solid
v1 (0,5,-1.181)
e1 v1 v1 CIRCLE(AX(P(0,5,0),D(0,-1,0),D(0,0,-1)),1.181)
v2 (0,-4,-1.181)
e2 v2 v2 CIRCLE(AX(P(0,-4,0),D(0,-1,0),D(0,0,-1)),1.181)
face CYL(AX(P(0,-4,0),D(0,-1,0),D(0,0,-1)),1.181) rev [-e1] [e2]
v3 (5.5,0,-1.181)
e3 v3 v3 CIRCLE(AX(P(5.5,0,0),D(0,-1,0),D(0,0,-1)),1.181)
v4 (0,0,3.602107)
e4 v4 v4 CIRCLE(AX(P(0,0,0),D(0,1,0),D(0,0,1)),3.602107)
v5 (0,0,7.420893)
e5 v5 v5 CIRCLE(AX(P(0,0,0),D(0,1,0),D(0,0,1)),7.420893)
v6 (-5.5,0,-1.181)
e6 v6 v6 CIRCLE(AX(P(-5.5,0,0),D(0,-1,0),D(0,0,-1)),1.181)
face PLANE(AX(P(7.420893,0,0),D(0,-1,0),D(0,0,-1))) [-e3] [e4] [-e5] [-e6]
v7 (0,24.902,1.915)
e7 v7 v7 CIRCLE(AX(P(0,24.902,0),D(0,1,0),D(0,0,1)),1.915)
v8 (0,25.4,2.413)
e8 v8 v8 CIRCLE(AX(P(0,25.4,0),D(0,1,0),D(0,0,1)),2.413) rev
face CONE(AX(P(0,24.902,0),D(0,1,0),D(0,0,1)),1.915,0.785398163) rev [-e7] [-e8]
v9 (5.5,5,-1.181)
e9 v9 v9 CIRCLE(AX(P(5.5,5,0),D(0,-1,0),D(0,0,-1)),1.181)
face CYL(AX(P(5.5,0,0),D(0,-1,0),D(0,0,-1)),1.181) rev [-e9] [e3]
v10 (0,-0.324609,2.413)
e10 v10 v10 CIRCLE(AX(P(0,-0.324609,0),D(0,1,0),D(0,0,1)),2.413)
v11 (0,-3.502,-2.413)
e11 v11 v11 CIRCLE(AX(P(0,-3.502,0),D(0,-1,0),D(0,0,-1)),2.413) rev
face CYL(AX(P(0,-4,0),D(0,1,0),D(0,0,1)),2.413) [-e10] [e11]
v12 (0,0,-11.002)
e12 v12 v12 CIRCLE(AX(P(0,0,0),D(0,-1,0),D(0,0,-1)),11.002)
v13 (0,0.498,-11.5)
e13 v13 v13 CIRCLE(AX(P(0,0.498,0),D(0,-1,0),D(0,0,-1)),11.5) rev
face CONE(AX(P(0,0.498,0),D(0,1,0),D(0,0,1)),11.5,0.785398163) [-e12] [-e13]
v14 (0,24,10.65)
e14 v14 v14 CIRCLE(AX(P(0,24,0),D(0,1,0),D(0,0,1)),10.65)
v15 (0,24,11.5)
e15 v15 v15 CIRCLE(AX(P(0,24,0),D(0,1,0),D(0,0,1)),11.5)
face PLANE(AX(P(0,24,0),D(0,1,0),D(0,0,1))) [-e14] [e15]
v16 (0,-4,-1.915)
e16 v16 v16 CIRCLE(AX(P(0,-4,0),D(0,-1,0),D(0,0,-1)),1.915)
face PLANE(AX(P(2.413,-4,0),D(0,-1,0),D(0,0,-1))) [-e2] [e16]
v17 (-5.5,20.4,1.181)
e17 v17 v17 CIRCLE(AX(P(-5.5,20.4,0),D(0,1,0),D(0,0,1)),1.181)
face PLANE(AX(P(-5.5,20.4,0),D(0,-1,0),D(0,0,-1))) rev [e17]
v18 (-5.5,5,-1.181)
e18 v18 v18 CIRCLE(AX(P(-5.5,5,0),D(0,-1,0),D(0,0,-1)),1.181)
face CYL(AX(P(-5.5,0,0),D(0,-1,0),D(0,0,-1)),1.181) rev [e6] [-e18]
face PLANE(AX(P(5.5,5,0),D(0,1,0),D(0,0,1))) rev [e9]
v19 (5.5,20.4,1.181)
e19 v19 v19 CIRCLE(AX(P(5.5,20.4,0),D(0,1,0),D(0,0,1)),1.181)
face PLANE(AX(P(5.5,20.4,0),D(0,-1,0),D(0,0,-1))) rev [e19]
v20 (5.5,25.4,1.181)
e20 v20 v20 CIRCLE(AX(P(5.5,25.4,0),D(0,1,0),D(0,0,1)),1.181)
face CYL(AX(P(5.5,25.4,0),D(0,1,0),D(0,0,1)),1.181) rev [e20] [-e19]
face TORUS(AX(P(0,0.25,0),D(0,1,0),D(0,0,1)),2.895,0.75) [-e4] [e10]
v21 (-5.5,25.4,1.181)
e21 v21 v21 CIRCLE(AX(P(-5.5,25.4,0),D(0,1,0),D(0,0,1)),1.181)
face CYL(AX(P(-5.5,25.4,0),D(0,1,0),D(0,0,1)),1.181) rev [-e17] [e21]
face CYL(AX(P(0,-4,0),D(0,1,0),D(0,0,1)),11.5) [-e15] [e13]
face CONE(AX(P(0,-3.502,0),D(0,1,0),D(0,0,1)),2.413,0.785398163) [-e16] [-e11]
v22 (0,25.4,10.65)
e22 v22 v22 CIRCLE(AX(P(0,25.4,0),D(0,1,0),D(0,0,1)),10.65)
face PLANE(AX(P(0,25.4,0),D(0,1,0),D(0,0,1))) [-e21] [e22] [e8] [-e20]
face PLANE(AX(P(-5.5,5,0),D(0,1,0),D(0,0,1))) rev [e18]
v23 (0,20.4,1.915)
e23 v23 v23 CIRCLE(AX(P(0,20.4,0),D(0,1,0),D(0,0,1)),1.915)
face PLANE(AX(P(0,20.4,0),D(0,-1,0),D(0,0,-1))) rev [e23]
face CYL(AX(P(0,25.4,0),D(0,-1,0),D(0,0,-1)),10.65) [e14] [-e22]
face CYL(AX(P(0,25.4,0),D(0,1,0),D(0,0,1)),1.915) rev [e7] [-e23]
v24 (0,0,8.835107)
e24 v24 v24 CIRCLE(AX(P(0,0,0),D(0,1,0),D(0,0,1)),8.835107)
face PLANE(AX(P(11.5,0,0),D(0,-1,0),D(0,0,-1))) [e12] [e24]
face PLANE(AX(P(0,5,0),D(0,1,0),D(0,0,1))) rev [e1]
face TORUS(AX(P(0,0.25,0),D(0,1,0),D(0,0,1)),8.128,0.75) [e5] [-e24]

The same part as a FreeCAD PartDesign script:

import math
import FreeCAD as App
import Part
import Sketcher
from FreeCAD import Vector


def edges_at(feature, points):
    """Names of the edges that pass closest to the given points."""
    edges = feature.Shape.Edges
    near = lambda p: min(range(len(edges)), key=lambda i: edges[i].distToShape(Part.Vertex(*p))[0])
    return sorted({f"Edge{near(p) + 1}" for p in points})

doc = App.newDocument("Part")
body = doc.addObject("PartDesign::Body", "Body")

sketch1 = body.newObject("Sketcher::SketchObject", "Sketch")
sketch1.AttachmentSupport = (doc.getObject("XY_Plane"), [""])
sketch1.MapMode = "FlatFace"
sketch1.addGeometry([
    Part.LineSegment(Vector(2.4, -4, 0), Vector(0, -4, 0)),
    Part.LineSegment(Vector(0, -4, 0), Vector(0, 24, 0)),
    Part.LineSegment(Vector(0, 24, 0), Vector(11.5, 24, 0)),
    Part.LineSegment(Vector(11.5, 24, 0), Vector(11.5, 0, 0)),
    Part.LineSegment(Vector(11.5, 0, 0), Vector(8.8, 0, 0)),
    Part.ArcOfCircle(Part.Circle(Vector(8.1, 0.2, 0), Vector(0, 0, 1), 0.8), math.radians(-161), math.radians(-19)),
    Part.LineSegment(Vector(7.4, 0, 0), Vector(3.6, 0, 0)),
    Part.ArcOfCircle(Part.Circle(Vector(2.9, 0.2, 0), Vector(0, 0, 1), 0.8), math.radians(-130), math.radians(-19)),
    Part.LineSegment(Vector(2.4, -0.3, 0), Vector(2.4, -4, 0)),
], False)
sketch1.addConstraint([
    Sketcher.Constraint("Coincident", 0, 2, 1, 1),
    Sketcher.Constraint("Coincident", 1, 2, 2, 1),
    Sketcher.Constraint("Coincident", 2, 2, 3, 1),
    Sketcher.Constraint("Coincident", 3, 2, 4, 1),
    Sketcher.Constraint("Coincident", 4, 2, 5, 2),
    Sketcher.Constraint("Coincident", 5, 1, 6, 1),
    Sketcher.Constraint("Coincident", 6, 2, 7, 2),
    Sketcher.Constraint("Coincident", 7, 1, 8, 1),
    Sketcher.Constraint("Coincident", 8, 2, 0, 1),
    Sketcher.Constraint("Horizontal", 0),
    Sketcher.Constraint("Vertical", 1),
    Sketcher.Constraint("Horizontal", 2),
    Sketcher.Constraint("Vertical", 3),
    Sketcher.Constraint("Horizontal", 4),
    Sketcher.Constraint("Horizontal", 6),
    Sketcher.Constraint("Vertical", 8),
    Sketcher.Constraint("Equal", 5, 7),
    Sketcher.Constraint("PointOnObject", 0, 2, -2),
    Sketcher.Constraint("PointOnObject", 3, 2, -1),
    Sketcher.Constraint("PointOnObject", 5, 1, -1),
    Sketcher.Constraint("Horizontal", 5, 3, 7, 3),
    Sketcher.Constraint("DistanceY", 1, 1, 1, 2, 28.0),
    Sketcher.Constraint("DistanceY", 3, 2, 3, 1, 24.0),
    Sketcher.Constraint("Radius", 5, 0.75),
    Sketcher.Constraint("DistanceX", 2, 1, 2, 2, 11.5),
    Sketcher.Constraint("DistanceX", 0, 2, 0, 1, 2.413),
    Sketcher.Constraint("DistanceY", -1, 1, 5, 3, 0.25),
    Sketcher.Constraint("DistanceX", -1, 1, 5, 3, 8.128),
    Sketcher.Constraint("DistanceX", -1, 1, 7, 3, 2.895),
])
revolution = body.newObject("PartDesign::Revolution", "Revolution")
revolution.Profile = sketch1
revolution.ReferenceAxis = (sketch1, ["V_Axis"])
revolution.Angle = 360

sketch2 = body.newObject("Sketcher::SketchObject", "Sketch001")
sketch2.AttachmentSupport = (doc.getObject("XZ_Plane"), [""])
sketch2.MapMode = "FlatFace"
sketch2.AttachmentOffset = App.Placement(Vector(0, 0, -24), App.Rotation())
sketch2.addGeometry(Part.Circle(Vector(0, 0, 0), Vector(0, 0, 1), 11), False)
sketch2.addConstraint([
    Sketcher.Constraint("Coincident", 0, 3, -1, 1),
    Sketcher.Constraint("Diameter", 0, 21.3),
])
pad1 = body.newObject("PartDesign::Pad", "Pad")
pad1.Profile = sketch2
pad1.Length = 1.4
pad1.Reversed = True

sketch3 = body.newObject("Sketcher::SketchObject", "Sketch002")
sketch3.AttachmentSupport = (doc.getObject("XZ_Plane"), [""])
sketch3.MapMode = "FlatFace"
sketch3.addGeometry([
    Part.Circle(Vector(5.5, 0, 0), Vector(0, 0, 1), 1.2),
    Part.Circle(Vector(-5.5, 0, 0), Vector(0, 0, 1), 1.2),
], False)
sketch3.addConstraint([
    Sketcher.Constraint("Equal", 0, 1),
    Sketcher.Constraint("Symmetric", 0, 3, 1, 3, -1, 1),
    Sketcher.Constraint("PointOnObject", 0, 3, -1),
    Sketcher.Constraint("Diameter", 0, 2.362),
    Sketcher.Constraint("DistanceX", 1, 3, 0, 3, 11.0),
])
doc.recompute()
hole = body.newObject("PartDesign::Hole", "Hole")
hole.Profile = sketch3
hole.ThreadType = "None"
hole.Diameter = 2.362
hole.DepthType = "Dimension"
hole.Depth = 5
hole.DrillPoint = "Flat"

sketch4 = body.newObject("Sketcher::SketchObject", "Sketch003")
sketch4.AttachmentSupport = (doc.getObject("XZ_Plane"), [""])
sketch4.MapMode = "FlatFace"
sketch4.AttachmentOffset = App.Placement(Vector(0, 0, 4), App.Rotation())
sketch4.addGeometry(Part.Circle(Vector(0, 0, 0), Vector(0, 0, 1), 1.2), False)
sketch4.addConstraint([
    Sketcher.Constraint("Coincident", 0, 3, -1, 1),
    Sketcher.Constraint("Diameter", 0, 2.362),
])
doc.recompute()
hole2 = body.newObject("PartDesign::Hole", "Hole001")
hole2.Profile = sketch4
hole2.ThreadType = "None"
hole2.Diameter = 2.362
hole2.DepthType = "Dimension"
hole2.Depth = 9
hole2.DrillPoint = "Flat"

sketch5 = body.newObject("Sketcher::SketchObject", "Sketch004")
sketch5.AttachmentSupport = (doc.getObject("XZ_Plane"), [""])
sketch5.MapMode = "FlatFace"
sketch5.AttachmentOffset = App.Placement(Vector(0, 0, -25.4), App.Rotation())
sketch5.addGeometry(Part.Circle(Vector(0, 0, 0), Vector(0, 0, 1), 1.9), False)
sketch5.addConstraint([
    Sketcher.Constraint("Coincident", 0, 3, -1, 1),
    Sketcher.Constraint("Diameter", 0, 3.83),
])
doc.recompute()
hole3 = body.newObject("PartDesign::Hole", "Hole002")
hole3.Profile = sketch5
hole3.ThreadType = "None"
hole3.Diameter = 3.83
hole3.DepthType = "Dimension"
hole3.Depth = 5
hole3.DrillPoint = "Flat"
hole3.Reversed = True

sketch6 = body.newObject("Sketcher::SketchObject", "Sketch005")
sketch6.AttachmentSupport = (doc.getObject("XZ_Plane"), [""])
sketch6.MapMode = "FlatFace"
sketch6.AttachmentOffset = App.Placement(Vector(0, 0, -25.4), App.Rotation())
sketch6.addGeometry([
    Part.Circle(Vector(5.5, 0, 0), Vector(0, 0, 1), 1.2),
    Part.Circle(Vector(-5.5, 0, 0), Vector(0, 0, 1), 1.2),
], False)
sketch6.addConstraint([
    Sketcher.Constraint("Equal", 0, 1),
    Sketcher.Constraint("Symmetric", 0, 3, 1, 3, -1, 1),
    Sketcher.Constraint("PointOnObject", 0, 3, -1),
    Sketcher.Constraint("Diameter", 0, 2.362),
    Sketcher.Constraint("DistanceX", 1, 3, 0, 3, 11.0),
])
doc.recompute()
hole4 = body.newObject("PartDesign::Hole", "Hole003")
hole4.Profile = sketch6
hole4.ThreadType = "None"
hole4.Diameter = 2.362
hole4.DepthType = "Dimension"
hole4.Depth = 5
hole4.DrillPoint = "Flat"
hole4.Reversed = True
doc.recompute()

chamfer = body.newObject("PartDesign::Chamfer", "Chamfer")
chamfer.Base = (hole4, edges_at(hole4, [(-2.413, -4, 0), (1.915, 25.4, 0), (-11.5, 0, 0)]))
chamfer.Size = 0.498

doc.recompute()
